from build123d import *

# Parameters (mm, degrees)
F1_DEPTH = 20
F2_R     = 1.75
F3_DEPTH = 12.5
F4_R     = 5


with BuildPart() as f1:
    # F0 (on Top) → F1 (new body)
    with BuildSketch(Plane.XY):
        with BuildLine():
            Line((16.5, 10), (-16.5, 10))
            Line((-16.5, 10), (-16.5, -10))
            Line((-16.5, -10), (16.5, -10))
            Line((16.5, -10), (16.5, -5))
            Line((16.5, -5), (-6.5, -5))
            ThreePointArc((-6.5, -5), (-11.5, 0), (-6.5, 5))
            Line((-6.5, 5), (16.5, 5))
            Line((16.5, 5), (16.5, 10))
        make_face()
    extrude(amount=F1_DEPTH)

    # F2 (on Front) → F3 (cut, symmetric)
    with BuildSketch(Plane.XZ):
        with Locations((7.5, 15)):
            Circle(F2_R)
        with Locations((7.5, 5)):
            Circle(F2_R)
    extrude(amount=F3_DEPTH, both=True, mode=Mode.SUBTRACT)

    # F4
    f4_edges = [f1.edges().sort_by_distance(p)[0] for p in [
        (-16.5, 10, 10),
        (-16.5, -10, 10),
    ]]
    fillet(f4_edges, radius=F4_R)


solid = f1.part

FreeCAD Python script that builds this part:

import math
import FreeCAD as App
import Part
import Sketcher

V = App.Vector
Q = App.Units.Quantity


def edges_at(feature, points):
    """Names of the edges that pass closest to the given points."""
    edges = feature.Shape.Edges
    near = lambda p: min(range(len(edges)), key=lambda i: edges[i].distToShape(Part.Vertex(*p))[0])
    return sorted({f"Edge{near(p) + 1}" for p in points})

doc = App.newDocument("Part")
params = doc.addObject("Spreadsheet::Sheet", "Params")
for row, (alias, value) in enumerate([
    ("sketch1_radius", "5 mm"),
    ("sketch1_width", "33 mm"),
    ("sketch1_width2", "23 mm"),
    ("sketch1_height", "20 mm"),
    ("pad1_length", "20 mm"),
    ("sketch2_diameter", "3.5 mm"),
    ("pocket1_length", "25 mm"),
    ("fillet_radius", "5 mm"),
], start=1):
    params.set(f"A{row}", alias)
    params.set(f"B{row}", "=" + value)
    params.setAlias(f"B{row}", alias)

body = doc.addObject("PartDesign::Body", "Body")

sketch1 = doc.addObject("Sketcher::SketchObject", "Sketch")
body.addObject(sketch1)
sketch1.AttachmentSupport = (doc.XY_Plane, [""])
sketch1.MapMode = "FlatFace"
sketch1.addGeometry([
    Part.LineSegment(V(16, 10, 0), V(-16, 10, 0)),
    Part.LineSegment(V(-16, 10, 0), V(-16, -10, 0)),
    Part.LineSegment(V(-16, -10, 0), V(16, -10, 0)),
    Part.LineSegment(V(16, -10, 0), V(16, -5, 0)),
    Part.LineSegment(V(16, -5, 0), V(-6, -5, 0)),
    Part.ArcOfCircle(Part.Circle(V(-6, 0, 0), V(0, 0, 1), 5), math.radians(90), math.radians(270)),
    Part.LineSegment(V(-6, 5, 0), V(16, 5, 0)),
    Part.LineSegment(V(16, 5, 0), V(16, 10, 0)),
], False)
sketch1.addConstraint([
    Sketcher.Constraint("Coincident", 0, 2, 1, 1),
    Sketcher.Constraint("Coincident", 1, 2, 2, 1),
    Sketcher.Constraint("Coincident", 2, 2, 3, 1),
    Sketcher.Constraint("Coincident", 3, 2, 4, 1),
    Sketcher.Constraint("Tangent", 4, 2, 5, 2),
    Sketcher.Constraint("Tangent", 5, 1, 6, 1),
    Sketcher.Constraint("Coincident", 6, 2, 7, 1),
    Sketcher.Constraint("Coincident", 7, 2, 0, 1),
    Sketcher.Constraint("Horizontal", 0),
    Sketcher.Constraint("Vertical", 1),
    Sketcher.Constraint("Horizontal", 2),
    Sketcher.Constraint("Vertical", 3),
    Sketcher.Constraint("Horizontal", 4),
    Sketcher.Constraint("Horizontal", 6),
    Sketcher.Constraint("Vertical", 7),
    Sketcher.Constraint("Symmetric", 0, 2, 2, 2, -1, 1),
    Sketcher.Constraint("Symmetric", 3, 2, 6, 2, -1),
    Sketcher.Constraint("Radius", 5, Q("5 mm")),
    Sketcher.Constraint("DistanceX", 0, 2, 0, 1, Q("33 mm")),
    Sketcher.Constraint("DistanceX", 4, 2, 4, 1, Q("23 mm")),
    Sketcher.Constraint("DistanceY", 1, 2, 1, 1, Q("20 mm")),
])
sketch1.setExpression("Constraints[17]", "Params.sketch1_radius")
sketch1.setExpression("Constraints[18]", "Params.sketch1_width")
sketch1.setExpression("Constraints[19]", "Params.sketch1_width2")
sketch1.setExpression("Constraints[20]", "Params.sketch1_height")
pad1 = doc.addObject("PartDesign::Pad", "Pad")
body.addObject(pad1)
pad1.Profile = sketch1
pad1.setExpression("Length", "Params.pad1_length")

sketch2 = doc.addObject("Sketcher::SketchObject", "Sketch001")
body.addObject(sketch2)
sketch2.AttachmentSupport = (doc.XZ_Plane, [""])
sketch2.MapMode = "FlatFace"
sketch2.addGeometry([
    Part.Circle(V(7.5, 15, 0), V(0, 0, 1), 1.8),
    Part.Circle(V(7.5, 5, 0), V(0, 0, 1), 1.8),
], False)
sketch2.addConstraint([
    Sketcher.Constraint("Equal", 0, 1),
    Sketcher.Constraint("Vertical", 0, 3, 1, 3),
    Sketcher.Constraint("Diameter", 0, Q("3.5 mm")),
    Sketcher.Constraint("DistanceY", -1, 1, 0, 3, Q("15 mm")),
    Sketcher.Constraint("DistanceY", -1, 1, 1, 3, Q("5 mm")),
    Sketcher.Constraint("DistanceX", -1, 1, 0, 3, Q("7.5 mm")),
])
sketch2.setExpression("Constraints[2]", "Params.sketch2_diameter")
pocket1 = doc.addObject("PartDesign::Pocket", "Pocket")
body.addObject(pocket1)
pocket1.Profile = sketch2
pocket1.setExpression("Length", "Params.pocket1_length")
pocket1.Midplane = True
doc.recompute()

fillet = doc.addObject("PartDesign::Fillet", "Fillet")
body.addObject(fillet)
fillet.Base = (pocket1, edges_at(pocket1, [(-16.5, 10, 10), (-16.5, -10, 10)]))
fillet.setExpression("Radius", "Params.fillet_radius")

doc.recompute()
